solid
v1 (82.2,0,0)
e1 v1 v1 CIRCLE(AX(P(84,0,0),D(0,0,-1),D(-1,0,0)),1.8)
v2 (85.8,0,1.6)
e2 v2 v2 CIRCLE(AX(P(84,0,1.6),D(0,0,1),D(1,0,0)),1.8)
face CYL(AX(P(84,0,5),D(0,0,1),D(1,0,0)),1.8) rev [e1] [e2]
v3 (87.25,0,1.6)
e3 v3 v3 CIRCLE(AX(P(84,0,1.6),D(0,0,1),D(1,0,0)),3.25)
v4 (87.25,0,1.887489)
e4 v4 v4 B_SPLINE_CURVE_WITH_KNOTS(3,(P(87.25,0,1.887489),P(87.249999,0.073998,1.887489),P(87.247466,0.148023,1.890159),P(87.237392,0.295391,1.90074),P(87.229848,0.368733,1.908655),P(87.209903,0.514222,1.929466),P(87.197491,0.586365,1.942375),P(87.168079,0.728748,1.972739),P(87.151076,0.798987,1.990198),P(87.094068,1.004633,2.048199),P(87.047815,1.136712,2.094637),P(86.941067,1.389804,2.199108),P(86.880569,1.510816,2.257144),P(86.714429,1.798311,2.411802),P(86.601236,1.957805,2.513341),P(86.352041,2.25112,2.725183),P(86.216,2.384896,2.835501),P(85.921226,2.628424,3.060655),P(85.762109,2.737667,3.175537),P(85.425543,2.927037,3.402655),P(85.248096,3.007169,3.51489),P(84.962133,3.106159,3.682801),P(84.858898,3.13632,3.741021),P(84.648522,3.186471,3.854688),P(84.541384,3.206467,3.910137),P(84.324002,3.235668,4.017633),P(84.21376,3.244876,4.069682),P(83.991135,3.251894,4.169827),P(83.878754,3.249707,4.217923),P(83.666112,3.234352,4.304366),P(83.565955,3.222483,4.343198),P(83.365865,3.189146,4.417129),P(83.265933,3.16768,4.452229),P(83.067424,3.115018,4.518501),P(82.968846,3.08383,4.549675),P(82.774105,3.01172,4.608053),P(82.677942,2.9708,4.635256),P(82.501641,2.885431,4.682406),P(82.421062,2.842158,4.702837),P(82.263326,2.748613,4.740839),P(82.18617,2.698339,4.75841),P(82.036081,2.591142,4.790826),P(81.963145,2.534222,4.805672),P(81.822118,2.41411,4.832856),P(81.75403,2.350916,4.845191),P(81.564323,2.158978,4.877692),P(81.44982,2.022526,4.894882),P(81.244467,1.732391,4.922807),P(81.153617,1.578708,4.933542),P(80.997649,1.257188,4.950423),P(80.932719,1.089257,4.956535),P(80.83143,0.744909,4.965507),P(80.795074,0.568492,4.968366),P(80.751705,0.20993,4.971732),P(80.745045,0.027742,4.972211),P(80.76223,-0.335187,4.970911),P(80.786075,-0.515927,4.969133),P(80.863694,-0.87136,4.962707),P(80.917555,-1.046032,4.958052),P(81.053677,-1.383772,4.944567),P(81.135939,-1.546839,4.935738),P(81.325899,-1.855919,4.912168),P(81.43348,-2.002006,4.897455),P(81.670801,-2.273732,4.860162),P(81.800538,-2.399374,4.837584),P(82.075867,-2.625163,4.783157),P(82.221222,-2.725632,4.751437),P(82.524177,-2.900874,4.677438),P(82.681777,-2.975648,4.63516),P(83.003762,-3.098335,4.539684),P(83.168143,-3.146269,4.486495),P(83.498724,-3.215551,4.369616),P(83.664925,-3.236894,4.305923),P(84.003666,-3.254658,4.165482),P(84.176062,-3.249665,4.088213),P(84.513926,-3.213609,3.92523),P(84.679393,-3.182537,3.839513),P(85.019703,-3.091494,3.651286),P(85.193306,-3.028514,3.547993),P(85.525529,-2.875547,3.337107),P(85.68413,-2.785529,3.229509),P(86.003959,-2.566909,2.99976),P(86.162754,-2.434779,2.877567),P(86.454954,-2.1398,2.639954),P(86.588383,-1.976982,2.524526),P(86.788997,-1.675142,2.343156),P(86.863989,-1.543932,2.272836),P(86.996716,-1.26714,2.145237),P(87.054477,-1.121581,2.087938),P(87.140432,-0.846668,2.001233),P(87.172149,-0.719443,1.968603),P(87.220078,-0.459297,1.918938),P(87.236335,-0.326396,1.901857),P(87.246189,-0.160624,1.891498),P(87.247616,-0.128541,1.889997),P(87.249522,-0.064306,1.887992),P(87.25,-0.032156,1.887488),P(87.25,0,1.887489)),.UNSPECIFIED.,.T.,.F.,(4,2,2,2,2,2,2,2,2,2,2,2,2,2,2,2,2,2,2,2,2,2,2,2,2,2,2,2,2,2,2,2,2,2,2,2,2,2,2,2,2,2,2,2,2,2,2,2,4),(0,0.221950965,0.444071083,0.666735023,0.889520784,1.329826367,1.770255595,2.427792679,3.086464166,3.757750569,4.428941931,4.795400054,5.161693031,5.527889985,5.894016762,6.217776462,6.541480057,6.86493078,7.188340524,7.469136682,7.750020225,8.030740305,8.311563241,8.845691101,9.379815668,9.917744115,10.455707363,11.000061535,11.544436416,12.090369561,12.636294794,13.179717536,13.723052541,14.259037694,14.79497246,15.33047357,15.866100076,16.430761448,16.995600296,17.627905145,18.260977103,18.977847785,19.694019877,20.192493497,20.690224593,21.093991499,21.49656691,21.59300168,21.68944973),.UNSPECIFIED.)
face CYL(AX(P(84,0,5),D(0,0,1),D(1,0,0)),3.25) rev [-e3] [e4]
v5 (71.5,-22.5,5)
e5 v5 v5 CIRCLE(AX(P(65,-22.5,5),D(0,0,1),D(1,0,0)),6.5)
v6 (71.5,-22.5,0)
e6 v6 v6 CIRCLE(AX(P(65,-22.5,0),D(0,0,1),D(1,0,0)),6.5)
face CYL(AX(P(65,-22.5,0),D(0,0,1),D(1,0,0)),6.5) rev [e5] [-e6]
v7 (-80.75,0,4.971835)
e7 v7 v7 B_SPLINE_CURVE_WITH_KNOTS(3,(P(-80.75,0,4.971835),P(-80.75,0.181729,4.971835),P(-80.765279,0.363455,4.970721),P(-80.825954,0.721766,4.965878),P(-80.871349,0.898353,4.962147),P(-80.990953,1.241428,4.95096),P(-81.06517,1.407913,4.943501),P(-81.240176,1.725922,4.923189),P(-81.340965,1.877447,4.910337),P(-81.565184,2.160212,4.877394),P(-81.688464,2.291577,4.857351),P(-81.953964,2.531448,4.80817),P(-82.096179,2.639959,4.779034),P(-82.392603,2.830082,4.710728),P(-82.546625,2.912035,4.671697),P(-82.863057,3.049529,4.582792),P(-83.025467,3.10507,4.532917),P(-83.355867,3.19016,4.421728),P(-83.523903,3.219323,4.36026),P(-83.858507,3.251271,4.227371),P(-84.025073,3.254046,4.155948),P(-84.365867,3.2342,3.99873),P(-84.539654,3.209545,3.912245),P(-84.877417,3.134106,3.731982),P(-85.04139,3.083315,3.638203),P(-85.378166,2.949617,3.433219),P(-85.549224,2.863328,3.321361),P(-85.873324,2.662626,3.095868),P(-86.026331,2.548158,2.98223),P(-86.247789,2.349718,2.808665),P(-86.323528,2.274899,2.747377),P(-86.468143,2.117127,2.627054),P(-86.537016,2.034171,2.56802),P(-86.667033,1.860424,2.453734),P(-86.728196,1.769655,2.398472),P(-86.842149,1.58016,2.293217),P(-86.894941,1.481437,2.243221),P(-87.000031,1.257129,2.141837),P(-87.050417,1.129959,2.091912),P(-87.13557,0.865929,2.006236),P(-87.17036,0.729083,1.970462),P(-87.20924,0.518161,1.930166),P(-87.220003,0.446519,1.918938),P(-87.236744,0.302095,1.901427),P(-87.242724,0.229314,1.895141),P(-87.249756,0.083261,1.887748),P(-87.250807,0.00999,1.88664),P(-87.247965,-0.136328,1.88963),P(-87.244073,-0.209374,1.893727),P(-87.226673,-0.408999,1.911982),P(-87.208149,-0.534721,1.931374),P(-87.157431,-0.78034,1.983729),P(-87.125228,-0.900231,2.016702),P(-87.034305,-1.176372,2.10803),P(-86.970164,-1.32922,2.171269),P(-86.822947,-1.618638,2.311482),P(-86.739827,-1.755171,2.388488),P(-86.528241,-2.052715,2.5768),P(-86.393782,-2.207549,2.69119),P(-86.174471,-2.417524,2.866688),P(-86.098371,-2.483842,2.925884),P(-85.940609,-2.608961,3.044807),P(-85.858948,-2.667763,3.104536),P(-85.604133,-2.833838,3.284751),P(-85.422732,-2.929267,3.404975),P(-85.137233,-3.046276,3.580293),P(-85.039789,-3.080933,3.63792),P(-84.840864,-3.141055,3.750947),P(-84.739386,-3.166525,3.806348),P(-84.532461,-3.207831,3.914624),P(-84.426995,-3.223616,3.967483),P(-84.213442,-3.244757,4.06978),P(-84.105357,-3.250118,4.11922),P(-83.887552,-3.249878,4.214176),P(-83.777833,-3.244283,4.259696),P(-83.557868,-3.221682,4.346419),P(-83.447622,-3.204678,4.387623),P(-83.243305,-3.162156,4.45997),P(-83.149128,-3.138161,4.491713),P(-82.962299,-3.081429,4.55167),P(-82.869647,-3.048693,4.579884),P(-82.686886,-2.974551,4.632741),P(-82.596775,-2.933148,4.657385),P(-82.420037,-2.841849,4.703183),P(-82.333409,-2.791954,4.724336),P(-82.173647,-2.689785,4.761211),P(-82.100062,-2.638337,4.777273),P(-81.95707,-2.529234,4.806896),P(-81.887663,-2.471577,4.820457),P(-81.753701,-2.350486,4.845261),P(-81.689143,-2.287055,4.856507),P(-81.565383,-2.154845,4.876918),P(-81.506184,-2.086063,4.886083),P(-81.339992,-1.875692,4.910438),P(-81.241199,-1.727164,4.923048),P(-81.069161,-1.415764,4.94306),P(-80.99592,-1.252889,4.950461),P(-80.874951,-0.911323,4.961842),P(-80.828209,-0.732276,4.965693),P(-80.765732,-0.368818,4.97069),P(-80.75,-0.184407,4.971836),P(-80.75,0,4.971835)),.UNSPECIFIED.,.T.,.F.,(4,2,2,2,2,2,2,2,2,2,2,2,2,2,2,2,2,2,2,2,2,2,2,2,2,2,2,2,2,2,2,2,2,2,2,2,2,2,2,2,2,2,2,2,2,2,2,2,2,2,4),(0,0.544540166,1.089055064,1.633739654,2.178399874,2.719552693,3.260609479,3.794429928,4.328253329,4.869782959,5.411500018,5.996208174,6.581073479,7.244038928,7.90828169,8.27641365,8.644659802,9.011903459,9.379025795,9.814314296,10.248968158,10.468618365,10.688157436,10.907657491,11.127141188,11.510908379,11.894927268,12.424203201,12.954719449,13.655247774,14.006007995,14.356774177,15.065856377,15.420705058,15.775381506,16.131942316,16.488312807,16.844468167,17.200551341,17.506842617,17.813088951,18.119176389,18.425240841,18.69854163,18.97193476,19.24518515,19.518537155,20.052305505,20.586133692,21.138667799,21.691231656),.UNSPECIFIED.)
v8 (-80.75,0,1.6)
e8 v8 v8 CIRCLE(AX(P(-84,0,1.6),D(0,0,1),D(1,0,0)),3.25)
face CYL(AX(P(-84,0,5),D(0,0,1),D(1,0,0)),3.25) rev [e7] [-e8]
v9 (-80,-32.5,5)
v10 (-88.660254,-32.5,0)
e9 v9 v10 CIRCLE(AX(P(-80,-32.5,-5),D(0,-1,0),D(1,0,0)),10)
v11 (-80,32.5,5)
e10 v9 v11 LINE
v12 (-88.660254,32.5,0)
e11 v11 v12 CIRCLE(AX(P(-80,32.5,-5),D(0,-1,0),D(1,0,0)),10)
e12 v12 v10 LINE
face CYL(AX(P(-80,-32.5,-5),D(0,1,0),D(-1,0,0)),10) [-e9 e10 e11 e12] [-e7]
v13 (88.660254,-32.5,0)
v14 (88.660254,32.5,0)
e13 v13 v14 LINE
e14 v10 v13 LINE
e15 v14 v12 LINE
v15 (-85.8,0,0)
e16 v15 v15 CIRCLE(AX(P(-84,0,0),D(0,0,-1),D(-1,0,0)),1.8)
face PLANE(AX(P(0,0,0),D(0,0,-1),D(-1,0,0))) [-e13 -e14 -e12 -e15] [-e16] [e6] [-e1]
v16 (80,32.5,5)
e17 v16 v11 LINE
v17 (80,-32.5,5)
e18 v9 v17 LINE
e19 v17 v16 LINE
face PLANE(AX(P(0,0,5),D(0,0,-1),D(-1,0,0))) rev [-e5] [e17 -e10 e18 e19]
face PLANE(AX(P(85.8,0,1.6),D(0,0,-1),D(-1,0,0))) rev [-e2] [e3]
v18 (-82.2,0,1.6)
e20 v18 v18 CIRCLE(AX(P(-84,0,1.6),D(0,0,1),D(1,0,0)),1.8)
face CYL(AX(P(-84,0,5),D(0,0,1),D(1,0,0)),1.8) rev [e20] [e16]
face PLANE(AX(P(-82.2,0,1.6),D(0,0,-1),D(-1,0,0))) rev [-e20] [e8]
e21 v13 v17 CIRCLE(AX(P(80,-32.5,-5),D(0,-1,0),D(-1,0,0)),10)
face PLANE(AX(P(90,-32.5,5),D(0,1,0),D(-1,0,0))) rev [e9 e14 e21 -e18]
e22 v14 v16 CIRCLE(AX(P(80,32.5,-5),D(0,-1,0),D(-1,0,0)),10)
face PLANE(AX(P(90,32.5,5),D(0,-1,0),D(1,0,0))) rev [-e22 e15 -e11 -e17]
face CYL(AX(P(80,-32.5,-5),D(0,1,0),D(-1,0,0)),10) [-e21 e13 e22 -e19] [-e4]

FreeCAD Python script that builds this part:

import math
import FreeCAD as App
import Part
import Sketcher
Q = App.Units.Quantity


def add_polygon(sketch, points):
    """Adds a closed chain of lines whose ends are joined by coincident constraints."""
    first, n = sketch.GeometryCount, len(points)
    for a, b in zip(points, points[1:] + points[:1]):
        sketch.addGeometry(Part.LineSegment(App.Vector(*a, 0), App.Vector(*b, 0)), False)
    for i in range(n):
        sketch.addConstraint(Sketcher.Constraint("Coincident", first + i, 2, first + (i + 1) % n, 1))

doc = App.newDocument("Part")
params = doc.addObject("Spreadsheet::Sheet", "Params")
for row, (alias, value) in enumerate([
    ("sketch1_width", "180 mm"),
    ("sketch1_height", "65 mm"),
    ("pad1_length", "5 mm"),
    ("sketch2_diameter", "3.6 mm"),
    ("hole_diameter", "3.6 mm"),
    ("hole_depth", "9.1 mm"),
    ("hole_cbore_diameter", "6.5 mm"),
    ("hole_cbore_depth", "3.4 mm"),
    ("sketch3_radius", "10 mm"),
    ("sketch4_diameter", "13 mm"),
], start=1):
    params.set(f"A{row}", alias)
    params.set(f"B{row}", "=" + value)
    params.setAlias(f"B{row}", alias)

body = doc.addObject("PartDesign::Body", "Body")

sketch1 = body.newObject("Sketcher::SketchObject", "Sketch")
sketch1.AttachmentSupport = (doc.getObject("XY_Plane"), [""])
sketch1.MapMode = "FlatFace"
add_polygon(sketch1, [(-90, 32), (-90, -32), (90, -32), (90, 32)])
sketch1.addConstraint([
    Sketcher.Constraint("Vertical", 0),
    Sketcher.Constraint("Horizontal", 1),
    Sketcher.Constraint("Vertical", 2),
    Sketcher.Constraint("Horizontal", 3),
    Sketcher.Constraint("Symmetric", 0, 2, 2, 2, -1, 1),
    Sketcher.Constraint("DistanceX", 1, 1, 1, 2, Q("180 mm")),
    Sketcher.Constraint("DistanceY", 0, 2, 0, 1, Q("65 mm")),
])
sketch1.setExpression("Constraints[9]", "Params.sketch1_width")
sketch1.setExpression("Constraints[10]", "Params.sketch1_height")
pad1 = body.newObject("PartDesign::Pad", "Pad")
pad1.Profile = sketch1
pad1.setExpression("Length", "Params.pad1_length")

sketch2 = body.newObject("Sketcher::SketchObject", "Sketch001")
sketch2.AttachmentSupport = (doc.getObject("XY_Plane"), [""])
sketch2.MapMode = "FlatFace"
sketch2.AttachmentOffset = App.Placement(App.Vector(0, 0, 5), App.Rotation())
sketch2.addGeometry([
    Part.Circle(App.Vector(-84, 0, 0), App.Vector(0, 0, 1), 1.8),
    Part.Circle(App.Vector(84, 0, 0), App.Vector(0, 0, 1), 1.8),
], False)
sketch2.addConstraint([
    Sketcher.Constraint("Equal", 0, 1),
    Sketcher.Constraint("Symmetric", 0, 3, 1, 3, -1, 1),
    Sketcher.Constraint("PointOnObject", 0, 3, -1),
    Sketcher.Constraint("Diameter", 0, Q("3.6 mm")),
    Sketcher.Constraint("DistanceX", 0, 3, -1, 1, Q("84 mm")),
])
sketch2.setExpression("Constraints[3]", "Params.sketch2_diameter")
doc.recompute()
hole = body.newObject("PartDesign::Hole", "Hole")
hole.Profile = sketch2
hole.ThreadType = "None"
hole.setExpression("Diameter", "Params.hole_diameter")
hole.DepthType = "Dimension"
hole.setExpression("Depth", "Params.hole_depth")
hole.DrillPoint = "Angled"
hole.DrillPointAngle = 118
hole.HoleCutType = "Counterbore"
hole.setExpression("HoleCutDiameter", "Params.hole_cbore_diameter")
hole.setExpression("HoleCutDepth", "Params.hole_cbore_depth")

sketch3 = body.newObject("Sketcher::SketchObject", "Sketch002")
sketch3.AttachmentSupport = (doc.getObject("XZ_Plane"), [""])
sketch3.MapMode = "FlatFace"
sketch3.AttachmentOffset = App.Placement(App.Vector(0, 0, -32.5), App.Rotation())
sketch3.addGeometry([
    Part.LineSegment(App.Vector(-90, -5, 0), App.Vector(-90, 5, 0)),
    Part.LineSegment(App.Vector(-90, 5, 0), App.Vector(-80, 5, 0)),
    Part.ArcOfCircle(Part.Circle(App.Vector(-80, -5, 0), App.Vector(0, 0, 1), 10), math.radians(90), math.radians(180)),
    Part.LineSegment(App.Vector(80, 5, 0), App.Vector(90, 5, 0)),
    Part.LineSegment(App.Vector(90, 5, 0), App.Vector(90, -5, 0)),
    Part.ArcOfCircle(Part.Circle(App.Vector(80, -5, 0), App.Vector(0, 0, 1), 10), math.radians(0), math.radians(90)),
], False)
sketch3.addConstraint([
    Sketcher.Constraint("Coincident", 0, 2, 1, 1),
    Sketcher.Constraint("Tangent", 1, 2, 2, 1),
    Sketcher.Constraint("Tangent", 2, 2, 0, 1),
    Sketcher.Constraint("Coincident", 3, 2, 4, 1),
    Sketcher.Constraint("Tangent", 4, 2, 5, 1),
    Sketcher.Constraint("Tangent", 5, 2, 3, 1),
    Sketcher.Constraint("Vertical", 0),
    Sketcher.Constraint("Horizontal", 1),
    Sketcher.Constraint("Horizontal", 3),
    Sketcher.Constraint("Vertical", 4),
    Sketcher.Constraint("Equal", 2, 5),
    Sketcher.Constraint("Symmetric", 2, 2, 3, 2, -1, 1),
    Sketcher.Constraint("Horizontal", 2, 3, 5, 3),
    Sketcher.Constraint("Radius", 2, Q("10 mm")),
    Sketcher.Constraint("DistanceX", 2, 3, -1, 1, Q("80 mm")),
])
sketch3.setExpression("Constraints[13]", "Params.sketch3_radius")
pocket1 = body.newObject("PartDesign::Pocket", "Pocket")
pocket1.Profile = sketch3
pocket1.Type = "ThroughAll"
pocket1.Reversed = True

sketch4 = body.newObject("Sketcher::SketchObject", "Sketch003")
sketch4.AttachmentSupport = (doc.getObject("XY_Plane"), [""])
sketch4.MapMode = "FlatFace"
sketch4.AttachmentOffset = App.Placement(App.Vector(0, 0, 5), App.Rotation())
sketch4.addGeometry(Part.Circle(App.Vector(65, -22, 0), App.Vector(0, 0, 1), 6), False)
sketch4.addConstraint([
    Sketcher.Constraint("Diameter", 0, Q("13 mm")),
    Sketcher.Constraint("DistanceX", -1, 1, 0, 3, Q("65 mm")),
    Sketcher.Constraint("DistanceY", 0, 3, -1, 1, Q("22.5 mm")),
])
sketch4.setExpression("Constraints[0]", "Params.sketch4_diameter")
pocket2 = body.newObject("PartDesign::Pocket", "Pocket001")
pocket2.Profile = sketch4
pocket2.Type = "ThroughAll"

doc.recompute()
